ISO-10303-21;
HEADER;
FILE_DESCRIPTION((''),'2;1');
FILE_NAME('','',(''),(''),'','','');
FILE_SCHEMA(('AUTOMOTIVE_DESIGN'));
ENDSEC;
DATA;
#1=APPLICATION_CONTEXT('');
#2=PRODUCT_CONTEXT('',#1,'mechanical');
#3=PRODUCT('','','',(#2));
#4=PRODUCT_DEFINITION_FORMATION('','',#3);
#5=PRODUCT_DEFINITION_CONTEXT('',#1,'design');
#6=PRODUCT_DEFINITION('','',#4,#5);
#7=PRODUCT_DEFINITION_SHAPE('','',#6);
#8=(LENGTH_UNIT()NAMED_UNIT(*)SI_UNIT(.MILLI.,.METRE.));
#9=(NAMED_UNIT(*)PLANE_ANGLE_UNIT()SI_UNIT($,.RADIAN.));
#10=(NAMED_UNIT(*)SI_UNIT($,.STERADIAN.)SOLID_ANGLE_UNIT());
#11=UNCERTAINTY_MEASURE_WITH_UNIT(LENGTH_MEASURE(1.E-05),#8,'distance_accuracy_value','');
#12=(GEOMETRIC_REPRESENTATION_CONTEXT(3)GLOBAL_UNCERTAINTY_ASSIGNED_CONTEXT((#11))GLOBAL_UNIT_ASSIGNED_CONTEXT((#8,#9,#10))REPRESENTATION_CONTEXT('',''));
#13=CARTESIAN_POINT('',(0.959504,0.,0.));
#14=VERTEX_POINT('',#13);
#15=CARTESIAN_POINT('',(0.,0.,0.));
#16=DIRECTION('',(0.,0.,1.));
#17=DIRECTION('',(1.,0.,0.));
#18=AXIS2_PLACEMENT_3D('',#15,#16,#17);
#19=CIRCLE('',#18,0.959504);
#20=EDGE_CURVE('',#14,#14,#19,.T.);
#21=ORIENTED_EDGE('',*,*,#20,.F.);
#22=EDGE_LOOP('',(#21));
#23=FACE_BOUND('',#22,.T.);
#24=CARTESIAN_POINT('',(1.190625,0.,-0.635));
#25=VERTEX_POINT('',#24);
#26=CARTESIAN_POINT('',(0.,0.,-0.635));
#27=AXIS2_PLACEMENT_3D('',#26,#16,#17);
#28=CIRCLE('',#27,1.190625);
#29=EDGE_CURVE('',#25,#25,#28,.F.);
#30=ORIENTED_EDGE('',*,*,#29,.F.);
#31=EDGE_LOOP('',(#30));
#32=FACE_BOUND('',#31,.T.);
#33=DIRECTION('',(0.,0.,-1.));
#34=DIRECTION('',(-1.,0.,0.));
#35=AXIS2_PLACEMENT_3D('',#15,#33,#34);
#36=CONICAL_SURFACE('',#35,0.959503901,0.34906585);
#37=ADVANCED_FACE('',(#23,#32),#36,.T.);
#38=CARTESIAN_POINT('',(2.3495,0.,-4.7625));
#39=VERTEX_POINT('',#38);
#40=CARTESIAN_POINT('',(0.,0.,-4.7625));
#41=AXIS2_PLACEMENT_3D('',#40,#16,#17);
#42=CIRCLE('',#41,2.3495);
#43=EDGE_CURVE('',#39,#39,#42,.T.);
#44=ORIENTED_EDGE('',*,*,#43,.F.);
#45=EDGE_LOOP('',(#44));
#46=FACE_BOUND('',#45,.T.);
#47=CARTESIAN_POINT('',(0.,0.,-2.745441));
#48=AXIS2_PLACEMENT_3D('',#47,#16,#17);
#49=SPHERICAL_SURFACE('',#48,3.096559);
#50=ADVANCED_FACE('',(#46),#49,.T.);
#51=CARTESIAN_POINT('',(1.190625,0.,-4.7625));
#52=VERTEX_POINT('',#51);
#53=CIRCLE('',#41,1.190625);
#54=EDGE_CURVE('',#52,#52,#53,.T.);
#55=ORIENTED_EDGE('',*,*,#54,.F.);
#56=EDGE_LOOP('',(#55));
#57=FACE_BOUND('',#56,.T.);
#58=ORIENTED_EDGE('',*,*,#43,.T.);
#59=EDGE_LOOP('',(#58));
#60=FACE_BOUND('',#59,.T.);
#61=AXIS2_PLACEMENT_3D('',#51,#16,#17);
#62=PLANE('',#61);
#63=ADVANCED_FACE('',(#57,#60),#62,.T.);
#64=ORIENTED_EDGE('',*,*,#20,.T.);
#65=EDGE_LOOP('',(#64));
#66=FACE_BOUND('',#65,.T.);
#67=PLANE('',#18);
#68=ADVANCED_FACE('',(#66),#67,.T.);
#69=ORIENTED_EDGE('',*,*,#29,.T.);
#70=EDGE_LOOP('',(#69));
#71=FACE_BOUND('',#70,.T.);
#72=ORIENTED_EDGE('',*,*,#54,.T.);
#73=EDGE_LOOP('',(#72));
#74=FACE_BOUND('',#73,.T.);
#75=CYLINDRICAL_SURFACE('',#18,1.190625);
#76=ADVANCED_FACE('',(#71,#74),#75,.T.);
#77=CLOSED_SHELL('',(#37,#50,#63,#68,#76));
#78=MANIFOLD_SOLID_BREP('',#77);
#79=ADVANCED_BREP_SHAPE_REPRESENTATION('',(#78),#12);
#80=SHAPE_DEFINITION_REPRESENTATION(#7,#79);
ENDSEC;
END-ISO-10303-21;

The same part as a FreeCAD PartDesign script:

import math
import FreeCAD as App
import Part
import Sketcher

V = App.Vector
Q = App.Units.Quantity


def edges_at(feature, points):
    """Names of the edges that pass closest to the given points."""
    edges = feature.Shape.Edges
    near = lambda p: min(range(len(edges)), key=lambda i: edges[i].distToShape(Part.Vertex(*p))[0])
    return sorted({f"Edge{near(p) + 1}" for p in points})

doc = App.newDocument("Part")
body = doc.addObject("PartDesign::Body", "Body")

sketch1 = body.newObject("Sketcher::SketchObject", "Sketch")
sketch1.AttachmentSupport = (doc.getObject("XZ_Plane"), [""])
sketch1.MapMode = "FlatFace"
sketch1.addGeometry([
    Part.LineSegment(V(0, 0, 0), V(1.2, 0, 0)),
    Part.LineSegment(V(1.2, 0, 0), V(1.2, -4.8, 0)),
    Part.LineSegment(V(1.2, -4.8, 0), V(2.3, -4.8, 0)),
    Part.ArcOfCircle(Part.Circle(V(0, -2.7, 0), V(0, 0, 1), 3.1), math.radians(-90), math.radians(-41)),
    Part.LineSegment(V(0, -5.8, 0), V(0, 0, 0)),
], False)
sketch1.addConstraint([
    Sketcher.Constraint("Coincident", 0, 2, 1, 1),
    Sketcher.Constraint("Coincident", 1, 2, 2, 1),
    Sketcher.Constraint("Coincident", 2, 2, 3, 2),
    Sketcher.Constraint("Coincident", 3, 1, 4, 1),
    Sketcher.Constraint("Coincident", 4, 2, 0, 1),
    Sketcher.Constraint("Horizontal", 0),
    Sketcher.Constraint("Vertical", 1),
    Sketcher.Constraint("Horizontal", 2),
    Sketcher.Constraint("Vertical", 4),
    Sketcher.Constraint("Coincident", 4, 2, -1, 1),
    Sketcher.Constraint("PointOnObject", 3, 3, -2),
    Sketcher.Constraint("DistanceY", 4, 1, 4, 2, Q("0.23 in")),
    Sketcher.Constraint("DistanceX", 0, 1, 0, 2, Q("0.046875 in")),
    Sketcher.Constraint("DistanceY", 1, 2, 1, 1, Q("0.1875 in")),
    Sketcher.Constraint("Radius", 3, Q("3.096559 mm")),
])
revolution = body.newObject("PartDesign::Revolution", "Revolution")
revolution.Profile = sketch1
revolution.ReferenceAxis = (sketch1, ["V_Axis"])
revolution.Angle = 360
doc.recompute()

chamfer = body.newObject("PartDesign::Chamfer", "Chamfer")
chamfer.Base = (revolution, edges_at(revolution, [(-1.191, 0, 0)]))
chamfer.ChamferType = "Two distances"
chamfer.Size = Q("0.025 in")
chamfer.Size2 = 0.231121
chamfer.FlipDirection = True

doc.recompute()
